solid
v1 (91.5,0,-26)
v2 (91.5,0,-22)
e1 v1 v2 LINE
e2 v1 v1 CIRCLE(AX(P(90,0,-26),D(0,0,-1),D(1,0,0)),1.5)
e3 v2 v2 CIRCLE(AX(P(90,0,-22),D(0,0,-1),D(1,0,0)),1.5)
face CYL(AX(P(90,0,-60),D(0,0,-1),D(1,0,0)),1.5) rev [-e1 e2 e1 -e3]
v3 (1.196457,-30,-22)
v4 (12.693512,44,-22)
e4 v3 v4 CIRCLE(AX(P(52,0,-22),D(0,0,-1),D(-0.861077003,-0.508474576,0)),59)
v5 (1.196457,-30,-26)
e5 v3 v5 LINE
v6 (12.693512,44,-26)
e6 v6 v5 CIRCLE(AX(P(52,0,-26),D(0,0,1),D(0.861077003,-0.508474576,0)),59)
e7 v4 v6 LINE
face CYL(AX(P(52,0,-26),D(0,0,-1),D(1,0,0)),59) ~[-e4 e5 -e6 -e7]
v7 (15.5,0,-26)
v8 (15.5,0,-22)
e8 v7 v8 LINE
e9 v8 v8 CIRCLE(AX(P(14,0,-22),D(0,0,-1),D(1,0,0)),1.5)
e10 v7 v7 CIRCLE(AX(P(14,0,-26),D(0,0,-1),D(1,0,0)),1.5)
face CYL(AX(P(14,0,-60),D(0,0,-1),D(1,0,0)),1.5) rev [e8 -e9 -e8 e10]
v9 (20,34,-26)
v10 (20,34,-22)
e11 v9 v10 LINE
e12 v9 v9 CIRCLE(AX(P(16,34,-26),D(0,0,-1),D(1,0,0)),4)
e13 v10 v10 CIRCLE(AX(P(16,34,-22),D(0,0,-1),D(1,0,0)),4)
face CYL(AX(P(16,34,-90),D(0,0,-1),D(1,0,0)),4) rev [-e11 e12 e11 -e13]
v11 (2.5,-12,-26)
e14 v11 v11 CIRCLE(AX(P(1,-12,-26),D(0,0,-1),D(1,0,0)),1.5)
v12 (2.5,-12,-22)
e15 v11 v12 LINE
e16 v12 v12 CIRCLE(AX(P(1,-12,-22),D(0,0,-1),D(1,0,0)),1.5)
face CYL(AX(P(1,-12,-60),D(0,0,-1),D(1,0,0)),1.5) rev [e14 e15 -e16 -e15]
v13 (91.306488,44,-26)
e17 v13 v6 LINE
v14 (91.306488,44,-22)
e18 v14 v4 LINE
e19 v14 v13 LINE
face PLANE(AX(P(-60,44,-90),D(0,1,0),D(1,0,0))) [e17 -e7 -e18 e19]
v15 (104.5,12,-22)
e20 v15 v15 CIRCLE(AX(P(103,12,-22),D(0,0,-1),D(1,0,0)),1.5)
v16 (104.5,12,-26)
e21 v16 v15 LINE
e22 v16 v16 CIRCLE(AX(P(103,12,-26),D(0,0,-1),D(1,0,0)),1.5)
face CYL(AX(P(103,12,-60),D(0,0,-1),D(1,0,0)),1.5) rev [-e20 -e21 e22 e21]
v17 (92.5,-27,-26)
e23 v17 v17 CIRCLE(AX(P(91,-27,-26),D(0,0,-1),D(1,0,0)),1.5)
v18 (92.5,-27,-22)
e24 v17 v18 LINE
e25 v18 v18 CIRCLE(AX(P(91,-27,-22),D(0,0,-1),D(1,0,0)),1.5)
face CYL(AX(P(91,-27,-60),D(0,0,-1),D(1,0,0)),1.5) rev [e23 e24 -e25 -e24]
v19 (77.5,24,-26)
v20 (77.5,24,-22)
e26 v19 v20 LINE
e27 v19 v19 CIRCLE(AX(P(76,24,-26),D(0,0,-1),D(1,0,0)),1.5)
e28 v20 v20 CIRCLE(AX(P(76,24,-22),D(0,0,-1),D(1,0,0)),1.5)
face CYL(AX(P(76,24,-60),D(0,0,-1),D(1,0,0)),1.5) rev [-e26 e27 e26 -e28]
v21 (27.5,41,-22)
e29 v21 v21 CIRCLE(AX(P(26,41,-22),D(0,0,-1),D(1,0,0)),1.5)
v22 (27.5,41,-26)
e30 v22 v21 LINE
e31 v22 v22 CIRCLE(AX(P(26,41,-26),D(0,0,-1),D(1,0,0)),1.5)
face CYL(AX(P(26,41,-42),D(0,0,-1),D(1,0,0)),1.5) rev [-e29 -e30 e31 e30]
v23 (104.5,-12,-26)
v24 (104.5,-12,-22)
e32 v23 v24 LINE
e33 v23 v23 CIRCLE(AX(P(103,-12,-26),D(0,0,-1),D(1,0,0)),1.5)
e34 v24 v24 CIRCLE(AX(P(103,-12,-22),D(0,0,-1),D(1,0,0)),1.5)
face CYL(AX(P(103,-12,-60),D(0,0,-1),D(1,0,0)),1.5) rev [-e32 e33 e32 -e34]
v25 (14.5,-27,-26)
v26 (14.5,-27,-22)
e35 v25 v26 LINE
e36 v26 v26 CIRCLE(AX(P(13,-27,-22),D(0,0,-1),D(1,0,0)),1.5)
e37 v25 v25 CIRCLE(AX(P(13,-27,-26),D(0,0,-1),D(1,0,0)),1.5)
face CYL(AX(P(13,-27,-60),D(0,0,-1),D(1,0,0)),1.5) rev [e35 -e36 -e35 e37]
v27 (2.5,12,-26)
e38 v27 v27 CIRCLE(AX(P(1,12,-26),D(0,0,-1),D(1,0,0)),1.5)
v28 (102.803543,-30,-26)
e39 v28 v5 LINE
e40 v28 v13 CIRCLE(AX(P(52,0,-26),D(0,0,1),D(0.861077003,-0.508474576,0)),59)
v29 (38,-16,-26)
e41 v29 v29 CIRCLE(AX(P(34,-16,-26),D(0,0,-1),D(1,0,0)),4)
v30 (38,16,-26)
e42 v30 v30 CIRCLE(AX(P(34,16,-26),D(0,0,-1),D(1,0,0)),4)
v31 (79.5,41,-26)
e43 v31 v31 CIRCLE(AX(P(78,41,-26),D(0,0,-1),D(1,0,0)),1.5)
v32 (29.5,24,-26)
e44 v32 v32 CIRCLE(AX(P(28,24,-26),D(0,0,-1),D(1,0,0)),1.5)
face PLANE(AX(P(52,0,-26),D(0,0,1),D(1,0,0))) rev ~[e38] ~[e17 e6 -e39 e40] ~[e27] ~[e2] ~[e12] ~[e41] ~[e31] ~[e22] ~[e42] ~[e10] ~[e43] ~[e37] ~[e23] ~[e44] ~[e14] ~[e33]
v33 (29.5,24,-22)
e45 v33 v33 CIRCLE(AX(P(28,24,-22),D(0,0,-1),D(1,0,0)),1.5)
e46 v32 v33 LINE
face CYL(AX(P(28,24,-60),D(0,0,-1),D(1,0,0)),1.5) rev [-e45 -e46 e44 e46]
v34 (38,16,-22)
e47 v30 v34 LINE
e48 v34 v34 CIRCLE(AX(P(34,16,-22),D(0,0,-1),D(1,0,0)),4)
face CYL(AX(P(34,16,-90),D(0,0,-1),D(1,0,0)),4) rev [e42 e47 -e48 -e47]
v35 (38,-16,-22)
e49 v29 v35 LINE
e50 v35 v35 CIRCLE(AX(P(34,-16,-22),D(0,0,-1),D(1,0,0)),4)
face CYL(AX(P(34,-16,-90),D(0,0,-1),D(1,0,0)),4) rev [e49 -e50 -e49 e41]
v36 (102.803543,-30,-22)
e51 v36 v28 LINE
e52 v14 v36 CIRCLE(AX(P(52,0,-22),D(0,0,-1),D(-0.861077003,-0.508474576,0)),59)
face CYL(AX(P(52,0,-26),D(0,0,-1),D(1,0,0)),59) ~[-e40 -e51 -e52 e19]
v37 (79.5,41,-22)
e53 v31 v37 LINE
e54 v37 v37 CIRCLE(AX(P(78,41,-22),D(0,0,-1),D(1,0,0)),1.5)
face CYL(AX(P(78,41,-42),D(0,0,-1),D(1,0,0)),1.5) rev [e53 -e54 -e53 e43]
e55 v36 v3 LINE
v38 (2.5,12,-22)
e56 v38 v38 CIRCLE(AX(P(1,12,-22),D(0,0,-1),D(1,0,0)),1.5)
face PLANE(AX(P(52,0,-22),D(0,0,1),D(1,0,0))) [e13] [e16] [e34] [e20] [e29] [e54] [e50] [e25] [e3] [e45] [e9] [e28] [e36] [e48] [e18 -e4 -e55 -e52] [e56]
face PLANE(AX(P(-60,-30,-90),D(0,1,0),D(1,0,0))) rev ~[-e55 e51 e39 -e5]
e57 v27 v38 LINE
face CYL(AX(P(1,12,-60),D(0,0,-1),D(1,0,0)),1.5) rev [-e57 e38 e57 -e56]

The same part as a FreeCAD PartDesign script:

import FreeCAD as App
import Part
import Sketcher
Q = App.Units.Quantity


def add_polygon(sketch, points):
    """Adds a closed chain of lines whose ends are joined by coincident constraints."""
    first, n = sketch.GeometryCount, len(points)
    for a, b in zip(points, points[1:] + points[:1]):
        sketch.addGeometry(Part.LineSegment(App.Vector(*a, 0), App.Vector(*b, 0)), False)
    for i in range(n):
        sketch.addConstraint(Sketcher.Constraint("Coincident", first + i, 2, first + (i + 1) % n, 1))

doc = App.newDocument("Part")
body = doc.addObject("PartDesign::Body", "Body")

# Sketch on XY plane
sketch1 = body.newObject("Sketcher::SketchObject", "Sketch")
sketch1.AttachmentSupport = (doc.getObject("XY_Plane"), [""])
sketch1.MapMode = "FlatFace"
sketch1.AttachmentOffset = App.Placement(App.Vector(0, 0, -60), App.Rotation())
sketch1.addGeometry(Part.Circle(App.Vector(14, 0, 0), App.Vector(0, 0, 1), 1.5), False)
sketch1.addConstraint([
    Sketcher.Constraint("PointOnObject", 0, 3, -1),
    Sketcher.Constraint("Diameter", 0, Q("3 mm")),
    Sketcher.Constraint("DistanceX", -1, 1, 0, 3, Q("14 mm")),
])
pad1 = body.newObject("PartDesign::Pad", "Pad")
pad1.Profile = sketch1
pad1.Length = 100
body2 = doc.addObject("PartDesign::Body", "Body001")
body2.AllowCompound = True

# Sketch on XY plane
sketch2 = body2.newObject("Sketcher::SketchObject", "Sketch001")
sketch2.AttachmentSupport = (doc.getObject("XY_Plane001"), [""])
sketch2.MapMode = "FlatFace"
sketch2.AttachmentOffset = App.Placement(App.Vector(0, 0, -60), App.Rotation())
sketch2.addGeometry(Part.Circle(App.Vector(90, 0, 0), App.Vector(0, 0, 1), 1.5), False)
sketch2.addConstraint([
    Sketcher.Constraint("PointOnObject", 0, 3, -1),
    Sketcher.Constraint("Diameter", 0, Q("3 mm")),
    Sketcher.Constraint("DistanceX", -1, 1, 0, 3, Q("90 mm")),
])
pad2 = body2.newObject("PartDesign::Pad", "Pad001")
pad2.Profile = sketch2
pad2.Length = 100
doc.recompute()

boolean = body2.newObject("PartDesign::Boolean", "Boolean")
boolean.Type = "Fuse"
boolean.addObjects([body])
body3 = doc.addObject("PartDesign::Body", "Body002")

# Sketch on XY plane
sketch3 = body3.newObject("Sketcher::SketchObject", "Sketch002")
sketch3.AttachmentSupport = (doc.getObject("XY_Plane002"), [""])
sketch3.MapMode = "FlatFace"
sketch3.AttachmentOffset = App.Placement(App.Vector(0, 0, -42), App.Rotation())
sketch3.addGeometry(Part.Circle(App.Vector(78, 41, 0), App.Vector(0, 0, 1), 1.5), False)
sketch3.addConstraint([
    Sketcher.Constraint("Diameter", 0, Q("3 mm")),
    Sketcher.Constraint("DistanceX", -1, 1, 0, 3, Q("78 mm")),
    Sketcher.Constraint("DistanceY", -1, 1, 0, 3, Q("41 mm")),
])
pad3 = body3.newObject("PartDesign::Pad", "Pad002")
pad3.Profile = sketch3
pad3.Length = 32
body4 = doc.addObject("PartDesign::Body", "Body003")
body4.AllowCompound = True

# Sketch on XY plane
sketch4 = body4.newObject("Sketcher::SketchObject", "Sketch003")
sketch4.AttachmentSupport = (doc.getObject("XY_Plane003"), [""])
sketch4.MapMode = "FlatFace"
sketch4.AttachmentOffset = App.Placement(App.Vector(0, 0, -42), App.Rotation())
sketch4.addGeometry(Part.Circle(App.Vector(26, 41, 0), App.Vector(0, 0, 1), 1.5), False)
sketch4.addConstraint([
    Sketcher.Constraint("Diameter", 0, Q("3 mm")),
    Sketcher.Constraint("DistanceX", -1, 1, 0, 3, Q("26 mm")),
    Sketcher.Constraint("DistanceY", -1, 1, 0, 3, Q("41 mm")),
])
pad4 = body4.newObject("PartDesign::Pad", "Pad003")
pad4.Profile = sketch4
pad4.Length = 32
doc.recompute()

boolean2 = body4.newObject("PartDesign::Boolean", "Boolean001")
boolean2.Type = "Fuse"
boolean2.addObjects([body3])
body5 = doc.addObject("PartDesign::Body", "Body004")

# Sketch on XY plane
sketch5 = body5.newObject("Sketcher::SketchObject", "Sketch004")
sketch5.AttachmentSupport = (doc.getObject("XY_Plane004"), [""])
sketch5.MapMode = "FlatFace"
sketch5.AttachmentOffset = App.Placement(App.Vector(0, 0, -90), App.Rotation())
add_polygon(sketch5, [(-60, 144), (-60, 44), (140, 44), (140, 144)])  # lines 0-3
sketch5.addConstraint([
    Sketcher.Constraint("Vertical", 0),
    Sketcher.Constraint("Horizontal", 1),
    Sketcher.Constraint("Vertical", 2),
    Sketcher.Constraint("Horizontal", 3),
    Sketcher.Constraint("DistanceX", 1, 1, 1, 2, Q("200 mm")),
    Sketcher.Constraint("DistanceY", 0, 2, 0, 1, Q("100 mm")),
    Sketcher.Constraint("DistanceX", 0, 2, -1, 1, Q("60 mm")),
    Sketcher.Constraint("DistanceY", -1, 1, 0, 2, Q("44 mm")),
])
pad5 = body5.newObject("PartDesign::Pad", "Pad004")
pad5.Profile = sketch5
pad5.Length = 100
body6 = doc.addObject("PartDesign::Body", "Body005")

# Sketch on XY plane
sketch6 = body6.newObject("Sketcher::SketchObject", "Sketch005")
sketch6.AttachmentSupport = (doc.getObject("XY_Plane005"), [""])
sketch6.MapMode = "FlatFace"
sketch6.AttachmentOffset = App.Placement(App.Vector(0, 0, -90), App.Rotation())
add_polygon(sketch6, [(-60, -30), (-60, -130), (140, -130), (140, -30)])  # lines 0-3
sketch6.addConstraint([
    Sketcher.Constraint("Vertical", 0),
    Sketcher.Constraint("Horizontal", 1),
    Sketcher.Constraint("Vertical", 2),
    Sketcher.Constraint("Horizontal", 3),
    Sketcher.Constraint("DistanceX", 1, 1, 1, 2, Q("200 mm")),
    Sketcher.Constraint("DistanceY", 0, 2, 0, 1, Q("100 mm")),
    Sketcher.Constraint("DistanceX", 0, 2, -1, 1, Q("60 mm")),
    Sketcher.Constraint("DistanceY", 0, 2, -1, 1, Q("130 mm")),
])
pad6 = body6.newObject("PartDesign::Pad", "Pad005")
pad6.Profile = sketch6
pad6.Length = 100
body7 = doc.addObject("PartDesign::Body", "Body006")

# Sketch on XY plane
sketch7 = body7.newObject("Sketcher::SketchObject", "Sketch006")
sketch7.AttachmentSupport = (doc.getObject("XY_Plane006"), [""])
sketch7.MapMode = "FlatFace"
sketch7.AttachmentOffset = App.Placement(App.Vector(0, 0, -90), App.Rotation())
sketch7.addGeometry(Part.Circle(App.Vector(-16, 34, 0), App.Vector(0, 0, 1), 4), False)
sketch7.addConstraint([
    Sketcher.Constraint("Diameter", 0, Q("8 mm")),
    Sketcher.Constraint("DistanceX", 0, 3, -1, 1, Q("16 mm")),
    Sketcher.Constraint("DistanceY", -1, 1, 0, 3, Q("34 mm")),
])
pad7 = body7.newObject("PartDesign::Pad", "Pad006")
pad7.Profile = sketch7
pad7.Length = 100
body8 = doc.addObject("PartDesign::Body", "Body007")

# Sketch on XY plane
sketch8 = body8.newObject("Sketcher::SketchObject", "Sketch007")
sketch8.AttachmentSupport = (doc.getObject("XY_Plane007"), [""])
sketch8.MapMode = "FlatFace"
sketch8.AttachmentOffset = App.Placement(App.Vector(0, 0, -90), App.Rotation())
sketch8.addGeometry(Part.Circle(App.Vector(-16, -34, 0), App.Vector(0, 0, 1), 4), False)
sketch8.addConstraint([
    Sketcher.Constraint("Diameter", 0, Q("8 mm")),
    Sketcher.Constraint("DistanceX", 0, 3, -1, 1, Q("16 mm")),
    Sketcher.Constraint("DistanceY", 0, 3, -1, 1, Q("34 mm")),
])
pad8 = body8.newObject("PartDesign::Pad", "Pad007")
pad8.Profile = sketch8
pad8.Length = 100
body9 = doc.addObject("PartDesign::Body", "Body008")

# Sketch on XY plane
sketch9 = body9.newObject("Sketcher::SketchObject", "Sketch008")
sketch9.AttachmentSupport = (doc.getObject("XY_Plane008"), [""])
sketch9.MapMode = "FlatFace"
sketch9.AttachmentOffset = App.Placement(App.Vector(0, 0, -90), App.Rotation())
sketch9.addGeometry(Part.Circle(App.Vector(34, -16, 0), App.Vector(0, 0, 1), 4), False)
sketch9.addConstraint([
    Sketcher.Constraint("Diameter", 0, Q("8 mm")),
    Sketcher.Constraint("DistanceX", -1, 1, 0, 3, Q("34 mm")),
    Sketcher.Constraint("DistanceY", 0, 3, -1, 1, Q("16 mm")),
])
pad9 = body9.newObject("PartDesign::Pad", "Pad008")
pad9.Profile = sketch9
pad9.Length = 100
body10 = doc.addObject("PartDesign::Body", "Body009")

# Sketch on XY plane
sketch10 = body10.newObject("Sketcher::SketchObject", "Sketch009")
sketch10.AttachmentSupport = (doc.getObject("XY_Plane009"), [""])
sketch10.MapMode = "FlatFace"
sketch10.AttachmentOffset = App.Placement(App.Vector(0, 0, -90), App.Rotation())
sketch10.addGeometry(Part.Circle(App.Vector(16, 34, 0), App.Vector(0, 0, 1), 4), False)
sketch10.addConstraint([
    Sketcher.Constraint("Diameter", 0, Q("8 mm")),
    Sketcher.Constraint("DistanceX", -1, 1, 0, 3, Q("16 mm")),
    Sketcher.Constraint("DistanceY", -1, 1, 0, 3, Q("34 mm")),
])
pad10 = body10.newObject("PartDesign::Pad", "Pad009")
pad10.Profile = sketch10
pad10.Length = 100
body11 = doc.addObject("PartDesign::Body", "Body010")

# Sketch on XY plane
sketch11 = body11.newObject("Sketcher::SketchObject", "Sketch010")
sketch11.AttachmentSupport = (doc.getObject("XY_Plane010"), [""])
sketch11.MapMode = "FlatFace"
sketch11.AttachmentOffset = App.Placement(App.Vector(0, 0, -90), App.Rotation())
sketch11.addGeometry(Part.Circle(App.Vector(16, -34, 0), App.Vector(0, 0, 1), 4), False)
sketch11.addConstraint([
    Sketcher.Constraint("Diameter", 0, Q("8 mm")),
    Sketcher.Constraint("DistanceX", -1, 1, 0, 3, Q("16 mm")),
    Sketcher.Constraint("DistanceY", 0, 3, -1, 1, Q("34 mm")),
])
pad11 = body11.newObject("PartDesign::Pad", "Pad010")
pad11.Profile = sketch11
pad11.Length = 100
body12 = doc.addObject("PartDesign::Body", "Body011")

# Sketch on XY plane
sketch12 = body12.newObject("Sketcher::SketchObject", "Sketch011")
sketch12.AttachmentSupport = (doc.getObject("XY_Plane011"), [""])
sketch12.MapMode = "FlatFace"
sketch12.AttachmentOffset = App.Placement(App.Vector(0, 0, -90), App.Rotation())
sketch12.addGeometry(Part.Circle(App.Vector(-34, 16, 0), App.Vector(0, 0, 1), 4), False)
sketch12.addConstraint([
    Sketcher.Constraint("Diameter", 0, Q("8 mm")),
    Sketcher.Constraint("DistanceX", 0, 3, -1, 1, Q("34 mm")),
    Sketcher.Constraint("DistanceY", -1, 1, 0, 3, Q("16 mm")),
])
pad12 = body12.newObject("PartDesign::Pad", "Pad011")
pad12.Profile = sketch12
pad12.Length = 100
body13 = doc.addObject("PartDesign::Body", "Body012")

# Sketch on XY plane
sketch13 = body13.newObject("Sketcher::SketchObject", "Sketch012")
sketch13.AttachmentSupport = (doc.getObject("XY_Plane012"), [""])
sketch13.MapMode = "FlatFace"
sketch13.AttachmentOffset = App.Placement(App.Vector(0, 0, -90), App.Rotation())
sketch13.addGeometry(Part.Circle(App.Vector(34, 16, 0), App.Vector(0, 0, 1), 4), False)
sketch13.addConstraint([
    Sketcher.Constraint("Diameter", 0, Q("8 mm")),
    Sketcher.Constraint("DistanceX", -1, 1, 0, 3, Q("34 mm")),
    Sketcher.Constraint("DistanceY", -1, 1, 0, 3, Q("16 mm")),
])
pad13 = body13.newObject("PartDesign::Pad", "Pad012")
pad13.Profile = sketch13
pad13.Length = 100
body14 = doc.addObject("PartDesign::Body", "Body013")
body14.AllowCompound = True

# Sketch on XY plane
sketch14 = body14.newObject("Sketcher::SketchObject", "Sketch013")
sketch14.AttachmentSupport = (doc.getObject("XY_Plane013"), [""])
sketch14.MapMode = "FlatFace"
sketch14.AttachmentOffset = App.Placement(App.Vector(0, 0, -90), App.Rotation())
sketch14.addGeometry(Part.Circle(App.Vector(-34, -16, 0), App.Vector(0, 0, 1), 4), False)
sketch14.addConstraint([
    Sketcher.Constraint("Diameter", 0, Q("8 mm")),
    Sketcher.Constraint("DistanceX", 0, 3, -1, 1, Q("34 mm")),
    Sketcher.Constraint("DistanceY", 0, 3, -1, 1, Q("16 mm")),
])
pad14 = body14.newObject("PartDesign::Pad", "Pad013")
pad14.Profile = sketch14
pad14.Length = 100
doc.recompute()

boolean3 = body14.newObject("PartDesign::Boolean", "Boolean002")
boolean3.Type = "Fuse"
boolean3.addObjects([body7])
doc.recompute()

boolean4 = body14.newObject("PartDesign::Boolean", "Boolean003")
boolean4.Type = "Fuse"
boolean4.addObjects([body8])
doc.recompute()

boolean5 = body14.newObject("PartDesign::Boolean", "Boolean004")
boolean5.Type = "Fuse"
boolean5.addObjects([body9])
doc.recompute()

boolean6 = body14.newObject("PartDesign::Boolean", "Boolean005")
boolean6.Type = "Fuse"
boolean6.addObjects([body10])
doc.recompute()

boolean7 = body14.newObject("PartDesign::Boolean", "Boolean006")
boolean7.Type = "Fuse"
boolean7.addObjects([body11])
doc.recompute()

boolean8 = body14.newObject("PartDesign::Boolean", "Boolean007")
boolean8.Type = "Fuse"
boolean8.addObjects([body12])
doc.recompute()

boolean9 = body14.newObject("PartDesign::Boolean", "Boolean008")
boolean9.Type = "Fuse"
boolean9.addObjects([body13])
body15 = doc.addObject("PartDesign::Body", "Body014")

# Sketch on XY plane
sketch15 = body15.newObject("Sketcher::SketchObject", "Sketch014")
sketch15.AttachmentSupport = (doc.getObject("XY_Plane014"), [""])
sketch15.MapMode = "FlatFace"
sketch15.AttachmentOffset = App.Placement(App.Vector(0, 0, -60), App.Rotation())
sketch15.addGeometry(Part.Circle(App.Vector(103, 12, 0), App.Vector(0, 0, 1), 1.5), False)
sketch15.addConstraint([
    Sketcher.Constraint("Diameter", 0, Q("3 mm")),
    Sketcher.Constraint("DistanceX", -1, 1, 0, 3, Q("103 mm")),
    Sketcher.Constraint("DistanceY", -1, 1, 0, 3, Q("12 mm")),
])
pad15 = body15.newObject("PartDesign::Pad", "Pad014")
pad15.Profile = sketch15
pad15.Length = 100
body16 = doc.addObject("PartDesign::Body", "Body015")

# Sketch on XY plane
sketch16 = body16.newObject("Sketcher::SketchObject", "Sketch015")
sketch16.AttachmentSupport = (doc.getObject("XY_Plane015"), [""])
sketch16.MapMode = "FlatFace"
sketch16.AttachmentOffset = App.Placement(App.Vector(0, 0, -60), App.Rotation())
sketch16.addGeometry(Part.Circle(App.Vector(76, 24, 0), App.Vector(0, 0, 1), 1.5), False)
sketch16.addConstraint([
    Sketcher.Constraint("Diameter", 0, Q("3 mm")),
    Sketcher.Constraint("DistanceX", -1, 1, 0, 3, Q("76 mm")),
    Sketcher.Constraint("DistanceY", -1, 1, 0, 3, Q("24 mm")),
])
pad16 = body16.newObject("PartDesign::Pad", "Pad015")
pad16.Profile = sketch16
pad16.Length = 100
body17 = doc.addObject("PartDesign::Body", "Body016")

# Sketch on XY plane
sketch17 = body17.newObject("Sketcher::SketchObject", "Sketch016")
sketch17.AttachmentSupport = (doc.getObject("XY_Plane016"), [""])
sketch17.MapMode = "FlatFace"
sketch17.AttachmentOffset = App.Placement(App.Vector(0, 0, -60), App.Rotation())
sketch17.addGeometry(Part.Circle(App.Vector(91, -27, 0), App.Vector(0, 0, 1), 1.5), False)
sketch17.addConstraint([
    Sketcher.Constraint("Diameter", 0, Q("3 mm")),
    Sketcher.Constraint("DistanceX", -1, 1, 0, 3, Q("91 mm")),
    Sketcher.Constraint("DistanceY", 0, 3, -1, 1, Q("27 mm")),
])
pad17 = body17.newObject("PartDesign::Pad", "Pad016")
pad17.Profile = sketch17
pad17.Length = 100
body18 = doc.addObject("PartDesign::Body", "Body017")

# Sketch on XY plane
sketch18 = body18.newObject("Sketcher::SketchObject", "Sketch017")
sketch18.AttachmentSupport = (doc.getObject("XY_Plane017"), [""])
sketch18.MapMode = "FlatFace"
sketch18.AttachmentOffset = App.Placement(App.Vector(0, 0, -60), App.Rotation())
sketch18.addGeometry(Part.Circle(App.Vector(13, -27, 0), App.Vector(0, 0, 1), 1.5), False)
sketch18.addConstraint([
    Sketcher.Constraint("Diameter", 0, Q("3 mm")),
    Sketcher.Constraint("DistanceX", -1, 1, 0, 3, Q("13 mm")),
    Sketcher.Constraint("DistanceY", 0, 3, -1, 1, Q("27 mm")),
])
pad18 = body18.newObject("PartDesign::Pad", "Pad017")
pad18.Profile = sketch18
pad18.Length = 100
body19 = doc.addObject("PartDesign::Body", "Body018")

# Sketch on XY plane
sketch19 = body19.newObject("Sketcher::SketchObject", "Sketch018")
sketch19.AttachmentSupport = (doc.getObject("XY_Plane018"), [""])
sketch19.MapMode = "FlatFace"
sketch19.AttachmentOffset = App.Placement(App.Vector(0, 0, -60), App.Rotation())
sketch19.addGeometry(Part.Circle(App.Vector(28, 24, 0), App.Vector(0, 0, 1), 1.5), False)
sketch19.addConstraint([
    Sketcher.Constraint("Diameter", 0, Q("3 mm")),
    Sketcher.Constraint("DistanceX", -1, 1, 0, 3, Q("28 mm")),
    Sketcher.Constraint("DistanceY", -1, 1, 0, 3, Q("24 mm")),
])
pad19 = body19.newObject("PartDesign::Pad", "Pad018")
pad19.Profile = sketch19
pad19.Length = 100
body20 = doc.addObject("PartDesign::Body", "Body019")

# Sketch on XY plane
sketch20 = body20.newObject("Sketcher::SketchObject", "Sketch019")
sketch20.AttachmentSupport = (doc.getObject("XY_Plane019"), [""])
sketch20.MapMode = "FlatFace"
sketch20.AttachmentOffset = App.Placement(App.Vector(0, 0, -60), App.Rotation())
sketch20.addGeometry(Part.Circle(App.Vector(1, -12, 0), App.Vector(0, 0, 1), 1.5), False)
sketch20.addConstraint([
    Sketcher.Constraint("Diameter", 0, Q("3 mm")),
    Sketcher.Constraint("DistanceX", -1, 1, 0, 3, Q("1 mm")),
    Sketcher.Constraint("DistanceY", 0, 3, -1, 1, Q("12 mm")),
])
pad20 = body20.newObject("PartDesign::Pad", "Pad019")
pad20.Profile = sketch20
pad20.Length = 100
body21 = doc.addObject("PartDesign::Body", "Body020")

# Sketch on XY plane
sketch21 = body21.newObject("Sketcher::SketchObject", "Sketch020")
sketch21.AttachmentSupport = (doc.getObject("XY_Plane020"), [""])
sketch21.MapMode = "FlatFace"
sketch21.AttachmentOffset = App.Placement(App.Vector(0, 0, -60), App.Rotation())
sketch21.addGeometry(Part.Circle(App.Vector(1, 12, 0), App.Vector(0, 0, 1), 1.5), False)
sketch21.addConstraint([
    Sketcher.Constraint("Diameter", 0, Q("3 mm")),
    Sketcher.Constraint("DistanceX", -1, 1, 0, 3, Q("1 mm")),
    Sketcher.Constraint("DistanceY", -1, 1, 0, 3, Q("12 mm")),
])
pad21 = body21.newObject("PartDesign::Pad", "Pad020")
pad21.Profile = sketch21
pad21.Length = 100
body22 = doc.addObject("PartDesign::Body", "Body021")
body22.AllowCompound = True

# Sketch on XY plane
sketch22 = body22.newObject("Sketcher::SketchObject", "Sketch021")
sketch22.AttachmentSupport = (doc.getObject("XY_Plane021"), [""])
sketch22.MapMode = "FlatFace"
sketch22.AttachmentOffset = App.Placement(App.Vector(0, 0, -60), App.Rotation())
sketch22.addGeometry(Part.Circle(App.Vector(103, -12, 0), App.Vector(0, 0, 1), 1.5), False)
sketch22.addConstraint([
    Sketcher.Constraint("Diameter", 0, Q("3 mm")),
    Sketcher.Constraint("DistanceX", -1, 1, 0, 3, Q("103 mm")),
    Sketcher.Constraint("DistanceY", 0, 3, -1, 1, Q("12 mm")),
])
pad22 = body22.newObject("PartDesign::Pad", "Pad021")
pad22.Profile = sketch22
pad22.Length = 100
doc.recompute()

boolean10 = body22.newObject("PartDesign::Boolean", "Boolean009")
boolean10.Type = "Fuse"
boolean10.addObjects([body15])
doc.recompute()

boolean11 = body22.newObject("PartDesign::Boolean", "Boolean010")
boolean11.Type = "Fuse"
boolean11.addObjects([body16])
doc.recompute()

boolean12 = body22.newObject("PartDesign::Boolean", "Boolean011")
boolean12.Type = "Fuse"
boolean12.addObjects([body17])
doc.recompute()

boolean13 = body22.newObject("PartDesign::Boolean", "Boolean012")
boolean13.Type = "Fuse"
boolean13.addObjects([body18])
doc.recompute()

boolean14 = body22.newObject("PartDesign::Boolean", "Boolean013")
boolean14.Type = "Fuse"
boolean14.addObjects([body19])
doc.recompute()

boolean15 = body22.newObject("PartDesign::Boolean", "Boolean014")
boolean15.Type = "Fuse"
boolean15.addObjects([body20])
doc.recompute()

boolean16 = body22.newObject("PartDesign::Boolean", "Boolean015")
boolean16.Type = "Fuse"
boolean16.addObjects([body21])
body23 = doc.addObject("PartDesign::Body", "Body022")

# Sketch on XY plane
sketch23 = body23.newObject("Sketcher::SketchObject", "Sketch022")
sketch23.AttachmentSupport = (doc.getObject("XY_Plane022"), [""])
sketch23.MapMode = "FlatFace"
sketch23.AttachmentOffset = App.Placement(App.Vector(0, 0, -26), App.Rotation())
sketch23.addGeometry(Part.Circle(App.Vector(52, 0, 0), App.Vector(0, 0, 1), 59), False)
sketch23.addConstraint([
    Sketcher.Constraint("PointOnObject", 0, 3, -1),
    Sketcher.Constraint("Diameter", 0, Q("118 mm")),
    Sketcher.Constraint("DistanceX", -1, 1, 0, 3, Q("52 mm")),
])
pad23 = body23.newObject("PartDesign::Pad", "Pad022")
pad23.Profile = sketch23
pad23.Length = 4
doc.recompute()

boolean17 = body23.newObject("PartDesign::Boolean", "Boolean016")
boolean17.Type = "Cut"
boolean17.addObjects([body22])
doc.recompute()

boolean18 = body23.newObject("PartDesign::Boolean", "Boolean017")
boolean18.Type = "Cut"
boolean18.addObjects([body14])
doc.recompute()

boolean19 = body23.newObject("PartDesign::Boolean", "Boolean018")
boolean19.Type = "Cut"
boolean19.addObjects([body6])
doc.recompute()

boolean20 = body23.newObject("PartDesign::Boolean", "Boolean019")
boolean20.Type = "Cut"
boolean20.addObjects([body5])
doc.recompute()

boolean21 = body23.newObject("PartDesign::Boolean", "Boolean020")
boolean21.Type = "Cut"
boolean21.addObjects([body4])
doc.recompute()

boolean22 = body23.newObject("PartDesign::Boolean", "Boolean021")
boolean22.Type = "Cut"
boolean22.addObjects([body2])

doc.recompute()
